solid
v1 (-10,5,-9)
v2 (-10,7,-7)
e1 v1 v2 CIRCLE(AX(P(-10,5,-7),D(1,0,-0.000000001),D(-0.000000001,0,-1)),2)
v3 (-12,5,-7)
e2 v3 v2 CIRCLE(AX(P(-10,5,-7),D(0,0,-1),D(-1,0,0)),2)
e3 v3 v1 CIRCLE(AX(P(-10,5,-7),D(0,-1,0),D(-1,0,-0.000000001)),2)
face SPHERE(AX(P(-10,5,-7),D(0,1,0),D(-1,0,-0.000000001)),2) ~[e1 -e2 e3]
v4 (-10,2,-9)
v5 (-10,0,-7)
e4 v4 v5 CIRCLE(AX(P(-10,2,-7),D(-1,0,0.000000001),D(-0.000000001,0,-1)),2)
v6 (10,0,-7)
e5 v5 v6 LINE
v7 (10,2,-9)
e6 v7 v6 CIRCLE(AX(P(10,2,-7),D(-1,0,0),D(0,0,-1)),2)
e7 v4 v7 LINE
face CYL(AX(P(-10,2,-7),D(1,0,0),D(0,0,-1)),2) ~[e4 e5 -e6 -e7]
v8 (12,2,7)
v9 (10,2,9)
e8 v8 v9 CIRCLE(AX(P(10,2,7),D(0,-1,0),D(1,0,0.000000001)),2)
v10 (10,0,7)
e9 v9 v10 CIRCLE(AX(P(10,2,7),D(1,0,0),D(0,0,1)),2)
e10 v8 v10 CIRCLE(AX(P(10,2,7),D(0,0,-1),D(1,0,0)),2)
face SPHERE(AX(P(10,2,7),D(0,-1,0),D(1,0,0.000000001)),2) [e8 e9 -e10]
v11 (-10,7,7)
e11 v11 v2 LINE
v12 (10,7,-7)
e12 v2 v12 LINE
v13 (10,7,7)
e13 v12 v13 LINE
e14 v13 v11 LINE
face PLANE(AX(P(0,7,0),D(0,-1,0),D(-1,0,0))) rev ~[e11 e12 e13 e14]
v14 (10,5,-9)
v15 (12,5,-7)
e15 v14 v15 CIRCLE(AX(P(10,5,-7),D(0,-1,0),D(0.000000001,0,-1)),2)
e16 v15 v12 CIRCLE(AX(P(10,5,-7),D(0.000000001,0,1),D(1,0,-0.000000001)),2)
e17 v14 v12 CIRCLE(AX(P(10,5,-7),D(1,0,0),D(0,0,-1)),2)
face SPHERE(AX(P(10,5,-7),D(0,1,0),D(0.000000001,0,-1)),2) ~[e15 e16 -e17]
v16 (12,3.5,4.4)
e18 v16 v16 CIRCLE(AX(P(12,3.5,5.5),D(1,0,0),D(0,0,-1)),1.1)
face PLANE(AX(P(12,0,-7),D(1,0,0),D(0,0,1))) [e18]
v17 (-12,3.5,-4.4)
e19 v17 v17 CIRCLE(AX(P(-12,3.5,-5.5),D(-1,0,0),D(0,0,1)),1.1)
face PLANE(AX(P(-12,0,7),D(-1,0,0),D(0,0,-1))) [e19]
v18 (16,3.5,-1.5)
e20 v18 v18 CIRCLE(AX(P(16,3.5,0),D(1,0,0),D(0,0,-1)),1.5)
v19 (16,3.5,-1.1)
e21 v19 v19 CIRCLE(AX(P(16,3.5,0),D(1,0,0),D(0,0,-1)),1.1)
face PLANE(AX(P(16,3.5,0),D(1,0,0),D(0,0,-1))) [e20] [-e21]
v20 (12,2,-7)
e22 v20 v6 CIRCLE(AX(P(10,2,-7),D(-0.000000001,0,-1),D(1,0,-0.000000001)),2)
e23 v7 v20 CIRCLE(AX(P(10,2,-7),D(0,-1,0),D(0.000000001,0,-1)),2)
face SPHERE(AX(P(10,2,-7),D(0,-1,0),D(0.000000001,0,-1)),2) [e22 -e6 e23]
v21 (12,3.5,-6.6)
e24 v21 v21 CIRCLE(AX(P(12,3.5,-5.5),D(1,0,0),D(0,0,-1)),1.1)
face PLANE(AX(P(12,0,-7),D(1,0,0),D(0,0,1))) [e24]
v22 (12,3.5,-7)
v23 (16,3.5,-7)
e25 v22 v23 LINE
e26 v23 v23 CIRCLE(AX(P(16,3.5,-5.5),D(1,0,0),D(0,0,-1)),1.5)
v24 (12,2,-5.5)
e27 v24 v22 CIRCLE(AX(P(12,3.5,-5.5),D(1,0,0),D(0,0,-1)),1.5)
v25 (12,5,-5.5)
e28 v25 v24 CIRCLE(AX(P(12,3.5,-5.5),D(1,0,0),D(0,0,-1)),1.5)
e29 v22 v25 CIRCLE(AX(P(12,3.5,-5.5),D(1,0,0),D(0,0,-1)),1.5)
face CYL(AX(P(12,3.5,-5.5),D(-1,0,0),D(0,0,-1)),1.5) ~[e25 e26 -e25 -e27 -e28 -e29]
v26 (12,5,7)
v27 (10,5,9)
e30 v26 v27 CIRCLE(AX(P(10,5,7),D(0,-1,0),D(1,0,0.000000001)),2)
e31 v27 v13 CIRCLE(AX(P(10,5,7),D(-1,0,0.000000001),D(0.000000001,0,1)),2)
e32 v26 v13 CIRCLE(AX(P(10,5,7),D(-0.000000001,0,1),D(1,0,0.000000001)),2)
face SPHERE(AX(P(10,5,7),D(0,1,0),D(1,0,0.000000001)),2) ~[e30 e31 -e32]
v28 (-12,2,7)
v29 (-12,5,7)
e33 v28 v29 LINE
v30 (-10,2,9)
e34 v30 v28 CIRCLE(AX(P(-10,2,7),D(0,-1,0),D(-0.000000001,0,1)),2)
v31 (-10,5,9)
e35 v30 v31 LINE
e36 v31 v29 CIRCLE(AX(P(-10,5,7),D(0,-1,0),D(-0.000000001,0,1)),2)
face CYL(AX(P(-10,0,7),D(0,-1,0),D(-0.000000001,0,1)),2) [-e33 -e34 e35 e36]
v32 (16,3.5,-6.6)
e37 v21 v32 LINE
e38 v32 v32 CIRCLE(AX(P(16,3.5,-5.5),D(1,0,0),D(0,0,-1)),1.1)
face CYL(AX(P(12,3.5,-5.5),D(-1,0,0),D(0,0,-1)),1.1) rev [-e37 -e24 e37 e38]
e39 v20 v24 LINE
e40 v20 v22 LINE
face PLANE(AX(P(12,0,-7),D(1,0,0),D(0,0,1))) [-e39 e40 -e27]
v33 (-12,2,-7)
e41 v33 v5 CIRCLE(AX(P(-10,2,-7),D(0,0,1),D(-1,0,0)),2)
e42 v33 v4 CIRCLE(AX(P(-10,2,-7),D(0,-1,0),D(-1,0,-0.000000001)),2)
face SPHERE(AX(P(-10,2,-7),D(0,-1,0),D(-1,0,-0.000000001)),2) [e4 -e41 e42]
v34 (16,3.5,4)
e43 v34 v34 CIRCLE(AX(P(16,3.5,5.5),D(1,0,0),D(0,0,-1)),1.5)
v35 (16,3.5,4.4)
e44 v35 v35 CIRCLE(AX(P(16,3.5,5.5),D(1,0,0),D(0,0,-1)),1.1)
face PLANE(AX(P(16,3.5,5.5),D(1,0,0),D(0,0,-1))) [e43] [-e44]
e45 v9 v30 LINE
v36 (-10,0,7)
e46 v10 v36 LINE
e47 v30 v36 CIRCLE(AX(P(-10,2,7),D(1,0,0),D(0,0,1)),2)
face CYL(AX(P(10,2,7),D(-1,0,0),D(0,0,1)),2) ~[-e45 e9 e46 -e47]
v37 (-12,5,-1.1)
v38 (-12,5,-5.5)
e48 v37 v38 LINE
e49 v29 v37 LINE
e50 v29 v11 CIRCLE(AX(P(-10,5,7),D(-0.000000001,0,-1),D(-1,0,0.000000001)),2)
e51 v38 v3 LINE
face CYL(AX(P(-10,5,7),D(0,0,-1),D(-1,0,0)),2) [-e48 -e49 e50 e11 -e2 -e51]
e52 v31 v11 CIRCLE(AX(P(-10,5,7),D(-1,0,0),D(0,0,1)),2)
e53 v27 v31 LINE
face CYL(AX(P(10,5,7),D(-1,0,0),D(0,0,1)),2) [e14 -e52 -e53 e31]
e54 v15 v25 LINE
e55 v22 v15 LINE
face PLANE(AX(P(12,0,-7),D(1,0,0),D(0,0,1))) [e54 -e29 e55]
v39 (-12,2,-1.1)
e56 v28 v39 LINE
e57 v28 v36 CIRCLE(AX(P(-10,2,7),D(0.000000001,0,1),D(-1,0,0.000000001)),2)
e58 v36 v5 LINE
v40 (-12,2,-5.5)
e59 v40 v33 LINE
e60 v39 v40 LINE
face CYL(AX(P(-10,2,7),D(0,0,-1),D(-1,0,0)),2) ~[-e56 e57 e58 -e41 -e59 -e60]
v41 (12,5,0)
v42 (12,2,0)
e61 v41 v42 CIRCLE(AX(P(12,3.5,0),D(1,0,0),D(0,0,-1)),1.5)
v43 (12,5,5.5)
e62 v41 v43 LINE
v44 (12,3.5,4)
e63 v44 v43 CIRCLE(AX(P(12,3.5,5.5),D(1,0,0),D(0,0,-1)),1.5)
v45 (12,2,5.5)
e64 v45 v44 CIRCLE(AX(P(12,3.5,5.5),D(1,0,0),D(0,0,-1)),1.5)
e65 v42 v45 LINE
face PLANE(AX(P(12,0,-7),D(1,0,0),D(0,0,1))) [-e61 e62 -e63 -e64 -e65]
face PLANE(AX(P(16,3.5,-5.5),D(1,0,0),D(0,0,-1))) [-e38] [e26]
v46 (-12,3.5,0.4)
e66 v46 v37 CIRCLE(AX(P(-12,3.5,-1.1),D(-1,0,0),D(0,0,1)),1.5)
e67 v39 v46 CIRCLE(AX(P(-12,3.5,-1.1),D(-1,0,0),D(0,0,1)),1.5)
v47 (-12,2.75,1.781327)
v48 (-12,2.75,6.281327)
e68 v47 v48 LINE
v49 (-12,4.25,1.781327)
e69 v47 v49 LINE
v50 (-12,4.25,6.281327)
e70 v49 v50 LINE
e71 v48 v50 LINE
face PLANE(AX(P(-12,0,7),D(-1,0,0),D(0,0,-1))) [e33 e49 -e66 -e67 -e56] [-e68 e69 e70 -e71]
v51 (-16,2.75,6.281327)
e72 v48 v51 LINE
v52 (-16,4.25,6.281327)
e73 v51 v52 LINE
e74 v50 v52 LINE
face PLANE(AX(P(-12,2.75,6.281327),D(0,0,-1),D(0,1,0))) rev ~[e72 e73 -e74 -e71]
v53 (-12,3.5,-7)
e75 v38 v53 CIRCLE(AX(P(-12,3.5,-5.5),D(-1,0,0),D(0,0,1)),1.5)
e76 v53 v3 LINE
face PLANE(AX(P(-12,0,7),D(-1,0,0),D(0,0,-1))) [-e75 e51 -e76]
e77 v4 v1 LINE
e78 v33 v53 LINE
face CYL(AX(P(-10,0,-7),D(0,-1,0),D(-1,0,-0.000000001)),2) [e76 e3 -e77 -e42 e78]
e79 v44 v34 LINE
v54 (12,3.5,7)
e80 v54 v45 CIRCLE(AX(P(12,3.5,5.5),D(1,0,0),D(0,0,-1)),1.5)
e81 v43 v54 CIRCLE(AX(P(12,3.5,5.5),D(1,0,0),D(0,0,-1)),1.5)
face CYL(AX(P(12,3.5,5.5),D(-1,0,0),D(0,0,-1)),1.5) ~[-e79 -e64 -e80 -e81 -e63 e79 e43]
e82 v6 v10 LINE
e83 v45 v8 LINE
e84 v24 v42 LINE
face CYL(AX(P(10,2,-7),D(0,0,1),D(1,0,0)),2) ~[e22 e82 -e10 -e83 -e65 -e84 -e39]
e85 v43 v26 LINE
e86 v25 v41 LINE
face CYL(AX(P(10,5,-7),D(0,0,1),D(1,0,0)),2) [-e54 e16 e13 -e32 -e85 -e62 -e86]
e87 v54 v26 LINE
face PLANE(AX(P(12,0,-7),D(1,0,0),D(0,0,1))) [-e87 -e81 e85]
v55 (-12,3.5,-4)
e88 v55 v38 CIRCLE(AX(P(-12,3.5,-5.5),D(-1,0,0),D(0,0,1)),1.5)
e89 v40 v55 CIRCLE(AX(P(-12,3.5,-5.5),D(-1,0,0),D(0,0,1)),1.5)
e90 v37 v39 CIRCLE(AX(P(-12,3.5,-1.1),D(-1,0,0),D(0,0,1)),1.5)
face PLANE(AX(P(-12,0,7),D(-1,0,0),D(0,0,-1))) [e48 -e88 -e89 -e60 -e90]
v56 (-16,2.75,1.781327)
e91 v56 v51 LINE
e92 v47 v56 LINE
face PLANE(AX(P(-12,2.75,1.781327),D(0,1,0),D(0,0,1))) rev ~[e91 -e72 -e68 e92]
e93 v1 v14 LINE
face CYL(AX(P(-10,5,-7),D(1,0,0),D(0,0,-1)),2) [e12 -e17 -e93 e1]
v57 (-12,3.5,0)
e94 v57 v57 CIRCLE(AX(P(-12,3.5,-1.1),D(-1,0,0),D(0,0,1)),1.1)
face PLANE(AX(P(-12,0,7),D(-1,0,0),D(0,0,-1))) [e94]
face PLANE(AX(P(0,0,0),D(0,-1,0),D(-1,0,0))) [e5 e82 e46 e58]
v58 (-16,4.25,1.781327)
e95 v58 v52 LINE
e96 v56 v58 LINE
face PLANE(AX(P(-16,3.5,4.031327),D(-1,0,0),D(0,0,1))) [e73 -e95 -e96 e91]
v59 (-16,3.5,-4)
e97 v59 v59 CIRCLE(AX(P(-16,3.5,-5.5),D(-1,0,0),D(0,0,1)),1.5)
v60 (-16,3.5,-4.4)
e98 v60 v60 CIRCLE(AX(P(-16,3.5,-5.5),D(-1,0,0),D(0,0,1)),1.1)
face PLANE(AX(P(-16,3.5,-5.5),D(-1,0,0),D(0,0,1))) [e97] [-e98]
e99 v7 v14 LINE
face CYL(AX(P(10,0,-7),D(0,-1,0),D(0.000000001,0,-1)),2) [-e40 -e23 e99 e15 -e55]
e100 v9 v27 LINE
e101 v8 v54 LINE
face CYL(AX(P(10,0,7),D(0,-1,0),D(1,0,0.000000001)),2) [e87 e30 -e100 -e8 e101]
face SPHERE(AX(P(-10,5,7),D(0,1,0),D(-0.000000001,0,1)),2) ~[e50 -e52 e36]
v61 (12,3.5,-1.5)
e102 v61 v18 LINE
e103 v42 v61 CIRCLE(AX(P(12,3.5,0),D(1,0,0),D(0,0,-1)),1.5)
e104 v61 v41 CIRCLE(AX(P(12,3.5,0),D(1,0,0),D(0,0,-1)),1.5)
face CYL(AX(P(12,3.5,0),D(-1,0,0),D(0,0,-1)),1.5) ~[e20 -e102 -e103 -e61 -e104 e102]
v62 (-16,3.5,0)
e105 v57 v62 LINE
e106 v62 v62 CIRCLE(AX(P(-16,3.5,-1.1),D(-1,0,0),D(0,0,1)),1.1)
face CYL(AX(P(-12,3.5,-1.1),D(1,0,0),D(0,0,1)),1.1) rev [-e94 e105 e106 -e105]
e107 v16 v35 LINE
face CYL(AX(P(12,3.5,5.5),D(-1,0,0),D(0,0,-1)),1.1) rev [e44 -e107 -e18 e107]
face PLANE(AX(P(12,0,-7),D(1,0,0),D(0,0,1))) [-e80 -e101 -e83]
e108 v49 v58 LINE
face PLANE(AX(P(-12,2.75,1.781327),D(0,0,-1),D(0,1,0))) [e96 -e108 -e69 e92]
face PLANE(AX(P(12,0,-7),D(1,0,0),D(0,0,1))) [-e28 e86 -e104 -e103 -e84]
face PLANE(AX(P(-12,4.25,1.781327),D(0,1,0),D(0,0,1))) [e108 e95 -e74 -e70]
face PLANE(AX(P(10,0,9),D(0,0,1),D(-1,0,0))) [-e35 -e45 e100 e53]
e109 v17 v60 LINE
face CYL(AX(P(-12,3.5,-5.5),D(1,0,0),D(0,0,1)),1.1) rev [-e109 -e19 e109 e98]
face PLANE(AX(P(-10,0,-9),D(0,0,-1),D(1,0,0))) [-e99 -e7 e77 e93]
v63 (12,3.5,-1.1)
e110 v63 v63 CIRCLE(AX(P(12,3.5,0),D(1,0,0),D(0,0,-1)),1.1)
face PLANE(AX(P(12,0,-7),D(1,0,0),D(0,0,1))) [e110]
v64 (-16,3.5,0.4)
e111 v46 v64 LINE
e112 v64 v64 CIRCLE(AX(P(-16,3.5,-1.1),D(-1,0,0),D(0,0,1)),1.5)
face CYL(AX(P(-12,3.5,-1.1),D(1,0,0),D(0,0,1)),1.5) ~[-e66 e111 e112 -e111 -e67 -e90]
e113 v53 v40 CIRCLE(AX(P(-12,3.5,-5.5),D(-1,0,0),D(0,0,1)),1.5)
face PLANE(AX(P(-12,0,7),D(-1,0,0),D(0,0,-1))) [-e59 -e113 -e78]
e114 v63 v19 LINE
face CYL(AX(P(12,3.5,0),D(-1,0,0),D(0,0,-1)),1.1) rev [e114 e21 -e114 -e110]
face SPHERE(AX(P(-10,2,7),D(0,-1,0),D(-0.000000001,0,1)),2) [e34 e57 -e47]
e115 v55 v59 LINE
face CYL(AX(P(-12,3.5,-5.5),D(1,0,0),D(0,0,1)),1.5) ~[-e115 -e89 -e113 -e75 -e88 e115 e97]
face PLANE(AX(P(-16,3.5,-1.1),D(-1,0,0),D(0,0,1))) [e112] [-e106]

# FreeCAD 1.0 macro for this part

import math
import FreeCAD as App
import Part
import Sketcher
Q = App.Units.Quantity


def edges_at(feature, points):
    """Names of the edges that pass closest to the given points."""
    edges = feature.Shape.Edges
    near = lambda p: min(range(len(edges)), key=lambda i: edges[i].distToShape(Part.Vertex(*p))[0])
    return sorted({f"Edge{near(p) + 1}" for p in points})


def add_polygon(sketch, points):
    """Adds a closed chain of lines whose ends are joined by coincident constraints."""
    first, n = sketch.GeometryCount, len(points)
    for a, b in zip(points, points[1:] + points[:1]):
        sketch.addGeometry(Part.LineSegment(App.Vector(*a, 0), App.Vector(*b, 0)), False)
    for i in range(n):
        sketch.addConstraint(Sketcher.Constraint("Coincident", first + i, 2, first + (i + 1) % n, 1))

doc = App.newDocument("Part")
body = doc.addObject("PartDesign::Body", "Body")

sketch1 = body.newObject("Sketcher::SketchObject", "Sketch")
sketch1.AttachmentSupport = (doc.getObject("XZ_Plane"), [""])
sketch1.MapMode = "FlatFace"
sketch1.addGeometry(Part.LineSegment(App.Vector(-10, 9, 0), App.Vector(10, 9, 0)), False)
sketch1.addGeometry(Part.ArcOfCircle(Part.Circle(App.Vector(10, 7, 0), App.Vector(0, 0, 1), 2), math.radians(0), math.radians(90)), False)
sketch1.addGeometry(Part.LineSegment(App.Vector(12, 7, 0), App.Vector(12, -7, 0)), False)
sketch1.addGeometry(Part.ArcOfCircle(Part.Circle(App.Vector(10, -7, 0), App.Vector(0, 0, 1), 2), math.radians(-90), math.radians(0)), False)
sketch1.addGeometry(Part.LineSegment(App.Vector(10, -9, 0), App.Vector(-10, -9, 0)), False)
sketch1.addGeometry(Part.ArcOfCircle(Part.Circle(App.Vector(-10, -7, 0), App.Vector(0, 0, 1), 2), math.radians(-180), math.radians(-90)), False)
sketch1.addGeometry(Part.LineSegment(App.Vector(-12, -7, 0), App.Vector(-12, 7, 0)), False)
sketch1.addGeometry(Part.ArcOfCircle(Part.Circle(App.Vector(-10, 7, 0), App.Vector(0, 0, 1), 2), math.radians(90), math.radians(180)), False)
sketch1.addConstraint(Sketcher.Constraint("Tangent", 0, 2, 1, 2))
sketch1.addConstraint(Sketcher.Constraint("Tangent", 1, 1, 2, 1))
sketch1.addConstraint(Sketcher.Constraint("Tangent", 2, 2, 3, 2))
sketch1.addConstraint(Sketcher.Constraint("Tangent", 3, 1, 4, 1))
sketch1.addConstraint(Sketcher.Constraint("Tangent", 4, 2, 5, 2))
sketch1.addConstraint(Sketcher.Constraint("Tangent", 5, 1, 6, 1))
sketch1.addConstraint(Sketcher.Constraint("Tangent", 6, 2, 7, 2))
sketch1.addConstraint(Sketcher.Constraint("Tangent", 7, 1, 0, 1))
sketch1.addConstraint(Sketcher.Constraint("Horizontal", 0))
sketch1.addConstraint(Sketcher.Constraint("Vertical", 2))
sketch1.addConstraint(Sketcher.Constraint("Horizontal", 4))
sketch1.addConstraint(Sketcher.Constraint("Vertical", 6))
sketch1.addConstraint(Sketcher.Constraint("Equal", 1, 3))
sketch1.addConstraint(Sketcher.Constraint("Equal", 3, 5))
sketch1.addConstraint(Sketcher.Constraint("Equal", 5, 7))
sketch1.addConstraint(Sketcher.Constraint("Symmetric", 1, 3, 5, 3, -1, 1))
sketch1.addConstraint(Sketcher.Constraint("Radius", 1, Q("2 mm")))
sketch1.addConstraint(Sketcher.Constraint("DistanceX", 0, 1, 0, 2, Q("20 mm")))
sketch1.addConstraint(Sketcher.Constraint("DistanceY", 2, 2, 2, 1, Q("14 mm")))
pad1 = body.newObject("PartDesign::Pad", "Pad")
pad1.Profile = sketch1
pad1.Length = 7
pad1.Reversed = True
doc.recompute()

fillet = body.newObject("PartDesign::Fillet", "Fillet")
fillet.Base = (pad1, edges_at(pad1, [
    (11.414, 7, 8.414),
    (0, 0, 9),
    (-11.414, 0, 8.414),
    (12, 7, 0),
    (11.414, 7, -8.414),
    (0, 7, -9),
    (-11.414, 7, -8.414),
    (-12, 7, 0),
    (-11.414, 7, 8.414),
    (0, 7, 9),
    (-12, 0, 0),
    (-11.414, 0, -8.414),
    (0, 0, -9),
    (11.414, 0, -8.414),
    (12, 0, 0),
    (11.414, 0, 8.414),
]))
fillet.Radius = 2

sketch2 = body.newObject("Sketcher::SketchObject", "Sketch001")
sketch2.AttachmentSupport = (doc.getObject("YZ_Plane"), [""])
sketch2.MapMode = "FlatFace"
sketch2.AttachmentOffset = App.Placement(App.Vector(0, 0, 12), App.Rotation())
sketch2.addGeometry(Part.Circle(App.Vector(3.5, 0, 0), App.Vector(0, 0, 1), 1.5), False)
sketch2.addGeometry(Part.Circle(App.Vector(3.5, 0, 0), App.Vector(0, 0, 1), 1.1), False)
sketch2.addGeometry(Part.Circle(App.Vector(3.5, 5.5, 0), App.Vector(0, 0, 1), 1.5), False)
sketch2.addGeometry(Part.Circle(App.Vector(3.5, 5.5, 0), App.Vector(0, 0, 1), 1.1), False)
sketch2.addGeometry(Part.Circle(App.Vector(3.5, -5.5, 0), App.Vector(0, 0, 1), 1.5), False)
sketch2.addGeometry(Part.Circle(App.Vector(3.5, -5.5, 0), App.Vector(0, 0, 1), 1.1), False)
sketch2.addConstraint(Sketcher.Constraint("Coincident", 1, 3, 0, 3))
sketch2.addConstraint(Sketcher.Constraint("Coincident", 3, 3, 2, 3))
sketch2.addConstraint(Sketcher.Constraint("Coincident", 5, 3, 4, 3))
sketch2.addConstraint(Sketcher.Constraint("Equal", 0, 2))
sketch2.addConstraint(Sketcher.Constraint("Equal", 1, 3))
sketch2.addConstraint(Sketcher.Constraint("Equal", 2, 4))
sketch2.addConstraint(Sketcher.Constraint("Equal", 3, 5))
sketch2.addConstraint(Sketcher.Constraint("Symmetric", 2, 3, 4, 3, -1))
sketch2.addConstraint(Sketcher.Constraint("PointOnObject", 0, 3, -1))
sketch2.addConstraint(Sketcher.Constraint("Vertical", 1, 3, 2, 3))
sketch2.addConstraint(Sketcher.Constraint("Diameter", 0, Q("3 mm")))
sketch2.addConstraint(Sketcher.Constraint("Diameter", 1, Q("2.2 mm")))
sketch2.addConstraint(Sketcher.Constraint("DistanceY", 4, 3, 2, 3, Q("11 mm")))
sketch2.addConstraint(Sketcher.Constraint("DistanceX", -1, 1, 0, 3, Q("3.5 mm")))
pad2 = body.newObject("PartDesign::Pad", "Pad001")
pad2.Profile = sketch2
pad2.Length = 4

sketch3 = body.newObject("Sketcher::SketchObject", "Sketch002")
sketch3.AttachmentSupport = (doc.getObject("YZ_Plane"), [""])
sketch3.MapMode = "FlatFace"
sketch3.AttachmentOffset = App.Placement(App.Vector(0, 0, -12), App.Rotation())
sketch3.addGeometry(Part.Circle(App.Vector(3.5, -5.5, 0), App.Vector(0, 0, 1), 1.5), False)
sketch3.addGeometry(Part.Circle(App.Vector(3.5, -5.5, 0), App.Vector(0, 0, 1), 1.1), False)
sketch3.addGeometry(Part.Circle(App.Vector(3.5, -1.1, 0), App.Vector(0, 0, 1), 1.5), False)
sketch3.addGeometry(Part.Circle(App.Vector(3.5, -1.1, 0), App.Vector(0, 0, 1), 1.1), False)
add_polygon(sketch3, [(4.2, 1.8), (2.8, 1.8), (2.8, 6.3), (4.2, 6.3)])
sketch3.addConstraint(Sketcher.Constraint("Horizontal", 4))
sketch3.addConstraint(Sketcher.Constraint("Vertical", 5))
sketch3.addConstraint(Sketcher.Constraint("Horizontal", 6))
sketch3.addConstraint(Sketcher.Constraint("Vertical", 7))
sketch3.addConstraint(Sketcher.Constraint("Coincident", 1, 3, 0, 3))
sketch3.addConstraint(Sketcher.Constraint("Coincident", 3, 3, 2, 3))
sketch3.addConstraint(Sketcher.Constraint("Equal", 0, 2))
sketch3.addConstraint(Sketcher.Constraint("Equal", 1, 3))
sketch3.addConstraint(Sketcher.Constraint("Vertical", 1, 3, 2, 3))
sketch3.addConstraint(Sketcher.Constraint("Diameter", 0, Q("3 mm")))
sketch3.addConstraint(Sketcher.Constraint("Diameter", 1, Q("2.2 mm")))
sketch3.addConstraint(Sketcher.Constraint("DistanceX", 4, 2, 4, 1, Q("1.5 mm")))
sketch3.addConstraint(Sketcher.Constraint("DistanceY", 5, 1, 5, 2, Q("4.5 mm")))
sketch3.addConstraint(Sketcher.Constraint("DistanceX", -1, 1, 0, 3, Q("3.5 mm")))
sketch3.addConstraint(Sketcher.Constraint("DistanceY", 0, 3, -1, 1, Q("5.5 mm")))
sketch3.addConstraint(Sketcher.Constraint("DistanceY", 2, 3, -1, 1, Q("1.1 mm")))
sketch3.addConstraint(Sketcher.Constraint("DistanceX", -1, 1, 4, 2, Q("2.75 mm")))
sketch3.addConstraint(Sketcher.Constraint("DistanceY", -1, 1, 4, 2, Q("1.781327 mm")))
pad3 = body.newObject("PartDesign::Pad", "Pad002")
pad3.Profile = sketch3
pad3.Length = 4
pad3.Reversed = True

doc.recompute()
